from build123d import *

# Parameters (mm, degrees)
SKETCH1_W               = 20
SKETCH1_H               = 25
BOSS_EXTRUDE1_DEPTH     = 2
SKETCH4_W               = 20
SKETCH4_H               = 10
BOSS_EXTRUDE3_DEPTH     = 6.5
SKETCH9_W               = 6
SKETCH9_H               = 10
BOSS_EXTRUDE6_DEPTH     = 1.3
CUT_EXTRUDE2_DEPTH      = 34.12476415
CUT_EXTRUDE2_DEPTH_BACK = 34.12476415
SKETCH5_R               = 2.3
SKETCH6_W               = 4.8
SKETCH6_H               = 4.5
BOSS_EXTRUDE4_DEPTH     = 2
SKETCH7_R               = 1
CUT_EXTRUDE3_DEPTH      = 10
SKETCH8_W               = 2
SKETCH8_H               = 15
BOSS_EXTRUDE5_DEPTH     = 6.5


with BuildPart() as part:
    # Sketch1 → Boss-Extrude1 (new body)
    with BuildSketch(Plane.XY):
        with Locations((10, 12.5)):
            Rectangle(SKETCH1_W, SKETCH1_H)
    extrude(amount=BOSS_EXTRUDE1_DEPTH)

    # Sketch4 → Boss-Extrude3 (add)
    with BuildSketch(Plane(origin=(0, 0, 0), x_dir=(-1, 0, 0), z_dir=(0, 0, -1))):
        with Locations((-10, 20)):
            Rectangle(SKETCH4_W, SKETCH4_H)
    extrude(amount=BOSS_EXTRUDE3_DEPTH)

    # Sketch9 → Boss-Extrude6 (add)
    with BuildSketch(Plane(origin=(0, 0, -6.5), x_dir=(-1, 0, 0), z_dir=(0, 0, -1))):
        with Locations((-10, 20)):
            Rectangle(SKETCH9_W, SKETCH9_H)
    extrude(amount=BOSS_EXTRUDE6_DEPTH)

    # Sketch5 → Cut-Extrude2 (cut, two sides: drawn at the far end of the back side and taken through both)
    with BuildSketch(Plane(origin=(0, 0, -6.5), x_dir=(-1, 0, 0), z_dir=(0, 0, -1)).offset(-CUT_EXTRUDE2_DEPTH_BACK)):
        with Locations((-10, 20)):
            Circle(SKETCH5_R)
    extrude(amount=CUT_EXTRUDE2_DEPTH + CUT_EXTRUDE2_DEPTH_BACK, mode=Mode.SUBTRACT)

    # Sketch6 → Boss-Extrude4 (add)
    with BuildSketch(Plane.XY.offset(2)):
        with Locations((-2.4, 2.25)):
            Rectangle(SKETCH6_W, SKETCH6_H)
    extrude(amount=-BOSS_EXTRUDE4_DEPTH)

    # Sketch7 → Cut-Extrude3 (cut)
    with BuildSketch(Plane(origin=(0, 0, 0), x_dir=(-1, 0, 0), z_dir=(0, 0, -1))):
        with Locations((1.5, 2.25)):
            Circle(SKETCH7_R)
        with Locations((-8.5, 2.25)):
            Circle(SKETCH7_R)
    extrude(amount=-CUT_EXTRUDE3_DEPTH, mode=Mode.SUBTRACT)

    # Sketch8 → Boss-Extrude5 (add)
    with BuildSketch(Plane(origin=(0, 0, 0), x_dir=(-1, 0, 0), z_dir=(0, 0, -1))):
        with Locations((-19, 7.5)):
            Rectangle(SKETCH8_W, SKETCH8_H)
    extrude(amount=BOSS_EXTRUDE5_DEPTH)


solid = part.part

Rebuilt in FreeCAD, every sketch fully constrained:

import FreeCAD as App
import Part
import Sketcher

V = App.Vector
Q = App.Units.Quantity

doc = App.newDocument("Part")
body = doc.addObject("PartDesign::Body", "Body")

# Sketch on XY plane
sketch1 = body.newObject("Sketcher::SketchObject", "Sketch")
sketch1.AttachmentSupport = (doc.getObject("XY_Plane"), [""])
sketch1.MapMode = "FlatFace"
sketch1.addGeometry([
    Part.LineSegment(V(0, 25, 0), V(0, 0, 0)),
    Part.LineSegment(V(0, 0, 0), V(20, 0, 0)),
    Part.LineSegment(V(20, 0, 0), V(20, 25, 0)),
    Part.LineSegment(V(20, 25, 0), V(0, 25, 0)),
], False)
sketch1.addConstraint([
    Sketcher.Constraint("Coincident", 0, 2, 1, 1),
    Sketcher.Constraint("Coincident", 1, 2, 2, 1),
    Sketcher.Constraint("Coincident", 2, 2, 3, 1),
    Sketcher.Constraint("Coincident", 3, 2, 0, 1),
    Sketcher.Constraint("Vertical", 0),
    Sketcher.Constraint("Horizontal", 1),
    Sketcher.Constraint("Vertical", 2),
    Sketcher.Constraint("Horizontal", 3),
    Sketcher.Constraint("Coincident", 0, 2, -1, 1),
    Sketcher.Constraint("DistanceX", 1, 1, 1, 2, Q("20 mm")),
    Sketcher.Constraint("DistanceY", 0, 2, 0, 1, Q("25 mm")),
])
pad1 = body.newObject("PartDesign::Pad", "Pad")
pad1.Profile = sketch1
pad1.Length = 2

# Sketch on XY plane
sketch2 = body.newObject("Sketcher::SketchObject", "Sketch001")
sketch2.AttachmentSupport = (doc.getObject("XY_Plane"), [""])
sketch2.MapMode = "FlatFace"
sketch2.addGeometry([
    Part.LineSegment(V(20, 25, 0), V(20, 15, 0)),
    Part.LineSegment(V(20, 15, 0), V(0, 15, 0)),
    Part.LineSegment(V(0, 15, 0), V(0, 25, 0)),
    Part.LineSegment(V(0, 25, 0), V(20, 25, 0)),
], False)
sketch2.addConstraint([
    Sketcher.Constraint("Coincident", 0, 2, 1, 1),
    Sketcher.Constraint("Coincident", 1, 2, 2, 1),
    Sketcher.Constraint("Coincident", 2, 2, 3, 1),
    Sketcher.Constraint("Coincident", 3, 2, 0, 1),
    Sketcher.Constraint("Vertical", 0),
    Sketcher.Constraint("Horizontal", 1),
    Sketcher.Constraint("Vertical", 2),
    Sketcher.Constraint("Horizontal", 3),
    Sketcher.Constraint("PointOnObject", 1, 2, -2),
    Sketcher.Constraint("DistanceX", 1, 2, 1, 1, Q("20 mm")),
    Sketcher.Constraint("DistanceY", 0, 2, 0, 1, Q("10 mm")),
    Sketcher.Constraint("DistanceY", -1, 1, 0, 2, Q("15 mm")),
])
pad2 = body.newObject("PartDesign::Pad", "Pad001")
pad2.Profile = sketch2
pad2.Length = 6.5
pad2.Reversed = True

# Sketch on XY plane
sketch3 = body.newObject("Sketcher::SketchObject", "Sketch002")
sketch3.AttachmentSupport = (doc.getObject("XY_Plane"), [""])
sketch3.MapMode = "FlatFace"
sketch3.AttachmentOffset = App.Placement(V(0, 0, -6.5), App.Rotation())
sketch3.addGeometry([
    Part.LineSegment(V(13, 25, 0), V(13, 15, 0)),
    Part.LineSegment(V(13, 15, 0), V(7, 15, 0)),
    Part.LineSegment(V(7, 15, 0), V(7, 25, 0)),
    Part.LineSegment(V(7, 25, 0), V(13, 25, 0)),
], False)
sketch3.addConstraint([
    Sketcher.Constraint("Coincident", 0, 2, 1, 1),
    Sketcher.Constraint("Coincident", 1, 2, 2, 1),
    Sketcher.Constraint("Coincident", 2, 2, 3, 1),
    Sketcher.Constraint("Coincident", 3, 2, 0, 1),
    Sketcher.Constraint("Vertical", 0),
    Sketcher.Constraint("Horizontal", 1),
    Sketcher.Constraint("Vertical", 2),
    Sketcher.Constraint("Horizontal", 3),
    Sketcher.Constraint("DistanceX", 1, 2, 1, 1, Q("6 mm")),
    Sketcher.Constraint("DistanceY", 0, 2, 0, 1, Q("10 mm")),
    Sketcher.Constraint("DistanceX", -1, 1, 0, 2, Q("13 mm")),
    Sketcher.Constraint("DistanceY", -1, 1, 0, 2, Q("15 mm")),
])
pad3 = body.newObject("PartDesign::Pad", "Pad002")
pad3.Profile = sketch3
pad3.Length = 1.3
pad3.Reversed = True

# Sketch on XY plane
sketch4 = body.newObject("Sketcher::SketchObject", "Sketch003")
sketch4.AttachmentSupport = (doc.getObject("XY_Plane"), [""])
sketch4.MapMode = "FlatFace"
sketch4.AttachmentOffset = App.Placement(V(0, 0, -6.5), App.Rotation())
sketch4.addGeometry(Part.Circle(V(10, 20, 0), V(0, 0, 1), 2.3), False)
sketch4.addConstraint([
    Sketcher.Constraint("Diameter", 0, Q("4.6 mm")),
    Sketcher.Constraint("DistanceX", -1, 1, 0, 3, Q("10 mm")),
    Sketcher.Constraint("DistanceY", -1, 1, 0, 3, Q("20 mm")),
])
pocket1 = body.newObject("PartDesign::Pocket", "Pocket")
pocket1.Profile = sketch4
pocket1.Type = "ThroughAll"
pocket1.Midplane = True

# Sketch on XY plane
sketch5 = body.newObject("Sketcher::SketchObject", "Sketch004")
sketch5.AttachmentSupport = (doc.getObject("XY_Plane"), [""])
sketch5.MapMode = "FlatFace"
sketch5.AttachmentOffset = App.Placement(V(0, 0, 2), App.Rotation())
sketch5.addGeometry([
    Part.LineSegment(V(-4.8, 4.5, 0), V(-4.8, 0, 0)),
    Part.LineSegment(V(-4.8, 0, 0), V(0, 0, 0)),
    Part.LineSegment(V(0, 0, 0), V(0, 4.5, 0)),
    Part.LineSegment(V(0, 4.5, 0), V(-4.8, 4.5, 0)),
], False)
sketch5.addConstraint([
    Sketcher.Constraint("Coincident", 0, 2, 1, 1),
    Sketcher.Constraint("Coincident", 1, 2, 2, 1),
    Sketcher.Constraint("Coincident", 2, 2, 3, 1),
    Sketcher.Constraint("Coincident", 3, 2, 0, 1),
    Sketcher.Constraint("Vertical", 0),
    Sketcher.Constraint("Horizontal", 1),
    Sketcher.Constraint("Vertical", 2),
    Sketcher.Constraint("Horizontal", 3),
    Sketcher.Constraint("Coincident", 1, 2, -1, 1),
    Sketcher.Constraint("DistanceX", 1, 1, 1, 2, Q("4.8 mm")),
    Sketcher.Constraint("DistanceY", 0, 2, 0, 1, Q("4.5 mm")),
])
pad4 = body.newObject("PartDesign::Pad", "Pad003")
pad4.Profile = sketch5
pad4.Length = 2
pad4.Reversed = True

# Sketch on XY plane
sketch6 = body.newObject("Sketcher::SketchObject", "Sketch005")
sketch6.AttachmentSupport = (doc.getObject("XY_Plane"), [""])
sketch6.MapMode = "FlatFace"
sketch6.addGeometry([
    Part.Circle(V(-1.5, 2.25, 0), V(0, 0, 1), 1),
    Part.Circle(V(8.5, 2.25, 0), V(0, 0, 1), 1),
], False)
sketch6.addConstraint([
    Sketcher.Constraint("Equal", 0, 1),
    Sketcher.Constraint("Horizontal", 0, 3, 1, 3),
    Sketcher.Constraint("Diameter", 0, Q("2 mm")),
    Sketcher.Constraint("DistanceX", 0, 3, 1, 3, Q("10 mm")),
    Sketcher.Constraint("DistanceX", 0, 3, -1, 1, Q("1.5 mm")),
    Sketcher.Constraint("DistanceY", -1, 1, 0, 3, Q("2.25 mm")),
])
pocket2 = body.newObject("PartDesign::Pocket", "Pocket001")
pocket2.Profile = sketch6
pocket2.Length = 10
pocket2.Reversed = True

# Sketch on XY plane
sketch7 = body.newObject("Sketcher::SketchObject", "Sketch006")
sketch7.AttachmentSupport = (doc.getObject("XY_Plane"), [""])
sketch7.MapMode = "FlatFace"
sketch7.addGeometry([
    Part.LineSegment(V(20, 15, 0), V(20, 0, 0)),
    Part.LineSegment(V(20, 0, 0), V(18, 0, 0)),
    Part.LineSegment(V(18, 0, 0), V(18, 15, 0)),
    Part.LineSegment(V(18, 15, 0), V(20, 15, 0)),
], False)
sketch7.addConstraint([
    Sketcher.Constraint("Coincident", 0, 2, 1, 1),
    Sketcher.Constraint("Coincident", 1, 2, 2, 1),
    Sketcher.Constraint("Coincident", 2, 2, 3, 1),
    Sketcher.Constraint("Coincident", 3, 2, 0, 1),
    Sketcher.Constraint("Vertical", 0),
    Sketcher.Constraint("Horizontal", 1),
    Sketcher.Constraint("Vertical", 2),
    Sketcher.Constraint("Horizontal", 3),
    Sketcher.Constraint("PointOnObject", 0, 2, -1),
    Sketcher.Constraint("DistanceX", 1, 2, 1, 1, Q("2 mm")),
    Sketcher.Constraint("DistanceY", 0, 2, 0, 1, Q("15 mm")),
    Sketcher.Constraint("DistanceX", -1, 1, 0, 2, Q("20 mm")),
])
pad5 = body.newObject("PartDesign::Pad", "Pad004")
pad5.Profile = sketch7
pad5.Length = 6.5
pad5.Reversed = True

doc.recompute()
